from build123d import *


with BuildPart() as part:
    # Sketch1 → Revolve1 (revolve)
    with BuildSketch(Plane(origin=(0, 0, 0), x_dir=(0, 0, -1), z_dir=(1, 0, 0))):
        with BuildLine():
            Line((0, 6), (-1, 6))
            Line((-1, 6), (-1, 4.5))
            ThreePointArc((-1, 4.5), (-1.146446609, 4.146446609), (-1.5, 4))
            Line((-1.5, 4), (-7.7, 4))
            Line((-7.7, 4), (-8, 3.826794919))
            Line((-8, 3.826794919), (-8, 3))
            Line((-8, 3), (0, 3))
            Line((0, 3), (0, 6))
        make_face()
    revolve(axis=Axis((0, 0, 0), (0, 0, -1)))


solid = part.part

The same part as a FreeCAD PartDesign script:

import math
import FreeCAD as App
import Part
import Sketcher

V = App.Vector
Q = App.Units.Quantity

doc = App.newDocument("Part")
body = doc.addObject("PartDesign::Body", "Body")

sketch1 = body.newObject("Sketcher::SketchObject", "Sketch")
sketch1.AttachmentSupport = (doc.getObject("YZ_Plane"), [""])
sketch1.MapMode = "FlatFace"
sketch1.addGeometry(Part.LineSegment(V(6, 0, 0), V(6, 1, 0)), False)
sketch1.addGeometry(Part.LineSegment(V(6, 1, 0), V(4.5, 1, 0)), False)
sketch1.addGeometry(Part.ArcOfCircle(Part.Circle(V(4.5, 1.5, 0), V(0, 0, 1), 0.5), math.radians(180), math.radians(270)), False)
sketch1.addGeometry(Part.LineSegment(V(4, 1.5, 0), V(4, 7.7, 0)), False)
sketch1.addGeometry(Part.LineSegment(V(4, 7.7, 0), V(3.83, 8, 0)), False)
sketch1.addGeometry(Part.LineSegment(V(3.83, 8, 0), V(3, 8, 0)), False)
sketch1.addGeometry(Part.LineSegment(V(3, 8, 0), V(3, 0, 0)), False)
sketch1.addGeometry(Part.LineSegment(V(3, 0, 0), V(6, 0, 0)), False)
sketch1.addConstraint(Sketcher.Constraint("Coincident", 0, 2, 1, 1))
sketch1.addConstraint(Sketcher.Constraint("Tangent", 1, 2, 2, 2))
sketch1.addConstraint(Sketcher.Constraint("Tangent", 2, 1, 3, 1))
sketch1.addConstraint(Sketcher.Constraint("Coincident", 3, 2, 4, 1))
sketch1.addConstraint(Sketcher.Constraint("Coincident", 4, 2, 5, 1))
sketch1.addConstraint(Sketcher.Constraint("Coincident", 5, 2, 6, 1))
sketch1.addConstraint(Sketcher.Constraint("Coincident", 6, 2, 7, 1))
sketch1.addConstraint(Sketcher.Constraint("Coincident", 7, 2, 0, 1))
sketch1.addConstraint(Sketcher.Constraint("Vertical", 0))
sketch1.addConstraint(Sketcher.Constraint("Horizontal", 1))
sketch1.addConstraint(Sketcher.Constraint("Vertical", 3))
sketch1.addConstraint(Sketcher.Constraint("Horizontal", 5))
sketch1.addConstraint(Sketcher.Constraint("Vertical", 6))
sketch1.addConstraint(Sketcher.Constraint("Horizontal", 7))
sketch1.addConstraint(Sketcher.Constraint("PointOnObject", 6, 2, -1))
sketch1.addConstraint(Sketcher.Constraint("Radius", 2, Q("0.5 mm")))
sketch1.addConstraint(Sketcher.Constraint("DistanceX", 7, 1, 7, 2, Q("3 mm")))
sketch1.addConstraint(Sketcher.Constraint("DistanceY", 0, 1, 0, 2, Q("1 mm")))
sketch1.addConstraint(Sketcher.Constraint("DistanceY", 6, 2, 6, 1, Q("8 mm")))
sketch1.addConstraint(Sketcher.Constraint("Angle", 4, Q("120 deg")))
sketch1.addConstraint(Sketcher.Constraint("DistanceX", 1, 2, 1, 1, Q("1.5 mm")))
sketch1.addConstraint(Sketcher.Constraint("DistanceY", 3, 1, 3, 2, Q("6.2 mm")))
sketch1.addConstraint(Sketcher.Constraint("DistanceX", -1, 1, 0, 2, Q("6 mm")))
revolution = body.newObject("PartDesign::Revolution", "Revolution")
revolution.Profile = sketch1
revolution.ReferenceAxis = (sketch1, ["V_Axis"])
revolution.Angle = 360

doc.recompute()
